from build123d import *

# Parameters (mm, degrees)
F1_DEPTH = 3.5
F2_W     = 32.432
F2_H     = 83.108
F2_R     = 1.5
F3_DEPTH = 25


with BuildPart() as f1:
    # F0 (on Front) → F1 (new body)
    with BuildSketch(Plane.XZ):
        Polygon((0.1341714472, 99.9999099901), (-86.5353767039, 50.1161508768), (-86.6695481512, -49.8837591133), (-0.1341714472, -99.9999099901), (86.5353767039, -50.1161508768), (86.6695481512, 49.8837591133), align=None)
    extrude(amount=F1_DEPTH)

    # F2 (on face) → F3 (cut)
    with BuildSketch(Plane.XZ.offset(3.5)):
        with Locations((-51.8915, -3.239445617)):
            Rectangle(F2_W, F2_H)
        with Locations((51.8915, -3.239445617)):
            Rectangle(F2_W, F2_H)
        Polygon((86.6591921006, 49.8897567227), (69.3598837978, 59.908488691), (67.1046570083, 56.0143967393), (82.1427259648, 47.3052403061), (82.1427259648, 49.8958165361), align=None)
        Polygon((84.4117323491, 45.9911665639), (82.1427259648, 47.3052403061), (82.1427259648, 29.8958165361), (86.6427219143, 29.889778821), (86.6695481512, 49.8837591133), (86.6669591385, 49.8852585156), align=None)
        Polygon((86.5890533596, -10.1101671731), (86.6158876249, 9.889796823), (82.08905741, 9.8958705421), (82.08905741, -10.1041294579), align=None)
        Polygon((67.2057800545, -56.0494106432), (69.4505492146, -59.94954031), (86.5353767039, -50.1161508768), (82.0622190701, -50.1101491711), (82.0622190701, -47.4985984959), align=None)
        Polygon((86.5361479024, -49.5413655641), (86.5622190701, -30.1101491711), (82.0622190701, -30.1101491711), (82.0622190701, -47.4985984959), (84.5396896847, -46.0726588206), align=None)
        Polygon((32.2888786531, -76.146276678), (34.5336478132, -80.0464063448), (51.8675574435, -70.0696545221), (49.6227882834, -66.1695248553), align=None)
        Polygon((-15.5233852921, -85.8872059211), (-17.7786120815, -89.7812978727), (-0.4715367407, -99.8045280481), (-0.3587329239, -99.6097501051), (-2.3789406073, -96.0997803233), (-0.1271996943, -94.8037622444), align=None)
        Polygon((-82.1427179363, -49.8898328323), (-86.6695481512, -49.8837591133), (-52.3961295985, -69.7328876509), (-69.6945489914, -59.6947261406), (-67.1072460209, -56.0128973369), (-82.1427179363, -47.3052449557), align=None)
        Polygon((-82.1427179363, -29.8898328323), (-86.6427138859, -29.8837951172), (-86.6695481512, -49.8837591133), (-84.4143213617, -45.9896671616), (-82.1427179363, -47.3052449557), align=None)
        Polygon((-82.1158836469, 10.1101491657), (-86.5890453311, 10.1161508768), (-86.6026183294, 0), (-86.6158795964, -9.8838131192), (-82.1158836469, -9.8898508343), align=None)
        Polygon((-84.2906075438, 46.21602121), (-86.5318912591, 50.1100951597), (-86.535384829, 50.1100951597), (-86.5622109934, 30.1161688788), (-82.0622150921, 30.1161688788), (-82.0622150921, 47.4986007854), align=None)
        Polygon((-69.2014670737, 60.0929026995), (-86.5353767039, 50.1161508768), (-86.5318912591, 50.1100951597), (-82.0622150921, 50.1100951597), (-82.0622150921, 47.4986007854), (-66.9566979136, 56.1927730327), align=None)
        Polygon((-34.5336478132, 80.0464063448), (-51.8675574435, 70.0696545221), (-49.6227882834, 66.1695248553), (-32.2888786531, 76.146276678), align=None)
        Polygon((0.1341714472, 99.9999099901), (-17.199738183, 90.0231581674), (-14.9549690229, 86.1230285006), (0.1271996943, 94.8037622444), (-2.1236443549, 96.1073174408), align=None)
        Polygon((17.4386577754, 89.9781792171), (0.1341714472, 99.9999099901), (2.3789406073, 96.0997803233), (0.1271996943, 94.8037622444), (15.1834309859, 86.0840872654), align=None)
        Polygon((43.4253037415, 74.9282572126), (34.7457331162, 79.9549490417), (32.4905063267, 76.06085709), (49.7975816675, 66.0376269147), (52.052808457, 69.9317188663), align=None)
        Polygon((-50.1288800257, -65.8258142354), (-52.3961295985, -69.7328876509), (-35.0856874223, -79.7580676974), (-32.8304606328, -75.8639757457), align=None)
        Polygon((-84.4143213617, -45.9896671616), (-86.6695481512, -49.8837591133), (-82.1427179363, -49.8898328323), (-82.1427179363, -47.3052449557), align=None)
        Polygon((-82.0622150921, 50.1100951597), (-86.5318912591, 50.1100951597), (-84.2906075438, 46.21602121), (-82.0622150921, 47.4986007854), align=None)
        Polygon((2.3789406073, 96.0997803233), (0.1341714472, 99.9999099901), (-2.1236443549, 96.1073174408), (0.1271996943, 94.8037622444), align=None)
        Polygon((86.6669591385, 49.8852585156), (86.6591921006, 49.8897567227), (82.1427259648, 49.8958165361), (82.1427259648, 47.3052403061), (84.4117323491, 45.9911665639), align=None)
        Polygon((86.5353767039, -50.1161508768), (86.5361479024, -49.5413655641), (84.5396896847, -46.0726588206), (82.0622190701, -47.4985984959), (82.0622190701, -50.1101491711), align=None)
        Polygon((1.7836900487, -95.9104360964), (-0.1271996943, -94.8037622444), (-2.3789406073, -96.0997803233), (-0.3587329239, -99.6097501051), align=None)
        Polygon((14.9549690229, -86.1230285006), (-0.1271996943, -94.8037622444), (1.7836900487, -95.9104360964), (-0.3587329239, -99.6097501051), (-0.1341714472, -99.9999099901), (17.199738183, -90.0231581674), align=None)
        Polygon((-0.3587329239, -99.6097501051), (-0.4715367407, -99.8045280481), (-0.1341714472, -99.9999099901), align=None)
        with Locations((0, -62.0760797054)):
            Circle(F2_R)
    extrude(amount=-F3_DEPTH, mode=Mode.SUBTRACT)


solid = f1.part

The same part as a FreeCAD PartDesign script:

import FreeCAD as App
import Part
import Sketcher

V = App.Vector


def add_polygon(sketch, points):
    """Adds a closed chain of lines whose ends are joined by coincident constraints."""
    first, n = sketch.GeometryCount, len(points)
    for a, b in zip(points, points[1:] + points[:1]):
        sketch.addGeometry(Part.LineSegment(App.Vector(*a, 0), App.Vector(*b, 0)), False)
    for i in range(n):
        sketch.addConstraint(Sketcher.Constraint("Coincident", first + i, 2, first + (i + 1) % n, 1))

doc = App.newDocument("Part")
body = doc.addObject("PartDesign::Body", "Body")
body.AllowCompound = True

sketch1 = body.newObject("Sketcher::SketchObject", "Sketch")
sketch1.AttachmentSupport = (doc.getObject("XZ_Plane"), [""])
sketch1.MapMode = "FlatFace"
add_polygon(sketch1, [(0.134171, 99.99991), (-86.535377, 50.116151), (-86.669548, -49.883759), (-0.134171, -99.99991), (86.535377, -50.116151), (86.669548, 49.883759)])
sketch1.addConstraint([
    Sketcher.Constraint("Symmetric", 0, 2, 3, 2, -1, 1),
    Sketcher.Constraint("Symmetric", 1, 2, 4, 2, -1, 1),
    Sketcher.Constraint("Symmetric", 2, 2, 5, 2, -1, 1),
    Sketcher.Constraint("Equal", 0, 1),
    Sketcher.Constraint("Equal", 1, 2),
    Sketcher.Constraint("Distance", 0, 100.0),
    Sketcher.Constraint("DistanceY", 3, 2, 0, 2, 100.232302),
    Sketcher.Constraint("DistanceX", 1, 2, -1, 1, 86.669548),
    Sketcher.Constraint("DistanceX", 2, 2, -1, 1, 0.134171),
])
pad1 = body.newObject("PartDesign::Pad", "Pad")
pad1.Profile = sketch1
pad1.Length = 3.5

sketch2 = body.newObject("Sketcher::SketchObject", "Sketch001")
sketch2.AttachmentSupport = (doc.getObject("XZ_Plane"), [""])
sketch2.MapMode = "FlatFace"
sketch2.AttachmentOffset = App.Placement(V(0, 0, 3.5), App.Rotation())
add_polygon(sketch2, [(-68.1075, 38.314554), (-68.1075, -44.793446), (-35.6755, -44.793446), (-35.6755, 38.314554)])
add_polygon(sketch2, [(35.6755, 38.314554), (35.6755, -44.793446), (68.1075, -44.793446), (68.1075, 38.314554)])
add_polygon(sketch2, [(86.659192, 49.889757), (69.359884, 59.908489), (67.104657, 56.014397), (82.142726, 47.30524), (82.142726, 29.895817), (86.642722, 29.889779), (86.669548, 49.883759), (86.666959, 49.885259)])
add_polygon(sketch2, [(86.589053, -10.110167), (86.615888, 9.889797), (82.089057, 9.895871), (82.089057, -10.104129)])
add_polygon(sketch2, [(67.20578, -56.049411), (69.450549, -59.94954), (86.535377, -50.116151), (86.536148, -49.541366), (86.562219, -30.110149), (82.062219, -30.110149), (82.062219, -47.498598)])
add_polygon(sketch2, [(32.288879, -76.146277), (34.533648, -80.046406), (51.867557, -70.069655), (49.622788, -66.169525)])
add_polygon(sketch2, [(-15.523385, -85.887206), (-17.778612, -89.781298), (-0.471537, -99.804528), (-0.134171, -99.99991), (17.199738, -90.023158), (14.954969, -86.123029), (-0.1272, -94.803762)])
add_polygon(sketch2, [(-86.669548, -49.883759), (-52.39613, -69.732888), (-69.694549, -59.694726), (-67.107246, -56.012897), (-82.142718, -47.305245), (-82.142718, -29.889833), (-86.642714, -29.883795)])
add_polygon(sketch2, [(-82.115884, 10.110149), (-86.589045, 10.116151), (-86.602618, 0), (-86.61588, -9.883813), (-82.115884, -9.889851)])
add_polygon(sketch2, [(-86.531891, 50.110095), (-86.535385, 50.110095), (-86.562211, 30.116169), (-82.062215, 30.116169), (-82.062215, 47.498601), (-66.956698, 56.192773), (-69.201467, 60.092903), (-86.535377, 50.116151)])
add_polygon(sketch2, [(-34.533648, 80.046406), (-51.867557, 70.069655), (-49.622788, 66.169525), (-32.288879, 76.146277)])
add_polygon(sketch2, [(0.134171, 99.99991), (-17.199738, 90.023158), (-14.954969, 86.123029), (0.1272, 94.803762), (15.183431, 86.084087), (17.438658, 89.978179)])
add_polygon(sketch2, [(43.425304, 74.928257), (34.745733, 79.954949), (32.490506, 76.060857), (49.797582, 66.037627), (52.052808, 69.931719)])
add_polygon(sketch2, [(-50.12888, -65.825814), (-52.39613, -69.732888), (-35.085687, -79.758068), (-32.830461, -75.863976)])
sketch2.addGeometry(Part.Circle(V(0, -62.07608, 0), V(0, 0, 1), 1.5), False)
sketch2.addConstraint([
    Sketcher.Constraint("Vertical", 0),
    Sketcher.Constraint("Horizontal", 1),
    Sketcher.Constraint("Vertical", 2),
    Sketcher.Constraint("Horizontal", 3),
    Sketcher.Constraint("Vertical", 4),
    Sketcher.Constraint("Horizontal", 5),
    Sketcher.Constraint("Vertical", 6),
    Sketcher.Constraint("Horizontal", 7),
    Sketcher.Constraint("Vertical", 11),
    Sketcher.Constraint("Vertical", 18),
    Sketcher.Constraint("Horizontal", 24),
    Sketcher.Constraint("Vertical", 25),
    Sketcher.Constraint("Vertical", 42),
    Sketcher.Constraint("Vertical", 49),
    Sketcher.Constraint("Horizontal", 50),
    Sketcher.Constraint("Horizontal", 52),
    Sketcher.Constraint("Vertical", 53),
    Sketcher.Constraint("Coincident", 73, 2, 38, 2),
    Sketcher.Constraint("PointOnObject", 77, 3, -2),
    Sketcher.Constraint("PointOnObject", 46, 2, -1),
    Sketcher.Constraint("Diameter", 77, 3.0),
    Sketcher.Constraint("DistanceY", 18, 2, 18, 1, 20.0),
    Sketcher.Constraint("DistanceY", 49, 1, 49, 2, 20.0),
    Sketcher.Constraint("Distance", 28, 20.0),
    Sketcher.Constraint("Distance", 30, 20.0),
    Sketcher.Constraint("Distance", 32, 20.0),
    Sketcher.Constraint("Distance", 34, 20.0),
    Sketcher.Constraint("Distance", 39, 20.0),
    Sketcher.Constraint("Distance", 56, 20.0),
    Sketcher.Constraint("Distance", 58, 20.0),
    Sketcher.Constraint("Distance", 60, 20.0),
    Sketcher.Constraint("Distance", 62, 20.0),
    Sketcher.Constraint("Distance", 70, 20.0),
    Sketcher.Constraint("Distance", 76, 20.0),
    Sketcher.Constraint("DistanceX", 24, 2, 24, 1, 4.5),
    Sketcher.Constraint("Distance", 9, 4.5),
    Sketcher.Constraint("Distance", 12, 4.5),
    Sketcher.Constraint("Distance", 19, 4.5),
    Sketcher.Constraint("Distance", 20, 4.5),
    Sketcher.Constraint("Distance", 27, 4.5),
    Sketcher.Constraint("Distance", 29, 4.5),
    Sketcher.Constraint("Distance", 31, 4.5),
    Sketcher.Constraint("Distance", 35, 4.5),
    Sketcher.Constraint("Distance", 40, 4.5),
    Sketcher.Constraint("Distance", 43, 4.5),
    Sketcher.Constraint("Distance", 48, 4.5),
    Sketcher.Constraint("Distance", 55, 4.5),
    Sketcher.Constraint("Distance", 59, 4.5),
    Sketcher.Constraint("Distance", 61, 4.5),
    Sketcher.Constraint("Distance", 63, 4.5),
    Sketcher.Constraint("Distance", 66, 4.5),
    Sketcher.Constraint("Distance", 69, 4.5),
    Sketcher.Constraint("Distance", 71, 4.5),
    Sketcher.Constraint("Distance", 75, 4.5),
    Sketcher.Constraint("DistanceX", 1, 1, 1, 2, 32.432),
    Sketcher.Constraint("DistanceX", 5, 1, 5, 2, 32.432),
    Sketcher.Constraint("DistanceY", 0, 2, 0, 1, 83.108),
    Sketcher.Constraint("DistanceY", 4, 2, 4, 1, 83.108),
    Sketcher.Constraint("Distance", 13, 19.993998),
    Sketcher.Constraint("DistanceY", 25, 2, 25, 1, 17.388449),
    Sketcher.Constraint("DistanceY", 53, 1, 53, 2, 17.382432),
    Sketcher.Constraint("DistanceX", 0, 2, -1, 1, 68.1075),
    Sketcher.Constraint("DistanceX", -1, 1, 4, 2, 35.6755),
    Sketcher.Constraint("DistanceY", 25, 2, -1, 1, 47.498598),
    Sketcher.Constraint("DistanceX", 36, 2, -1, 1, 0.1272),
    Sketcher.Constraint("DistanceY", -1, 1, 53, 2, 47.498601),
    Sketcher.Constraint("DistanceX", -1, 1, 64, 2, 0.1272),
    Sketcher.Constraint("Distance", 14, 0.002992),
    Sketcher.Constraint("Distance", 16, 19.999982),
    Sketcher.Constraint("Distance", 33, 0.389858),
    Sketcher.Constraint("Distance", 38, 39.606251),
    Sketcher.Constraint("Distance", 44, 19.999982),
    Sketcher.Constraint("Distance", 46, 10.11616),
    Sketcher.Constraint("Distance", 65, 17.398932),
    Sketcher.Constraint("Distance", 67, 19.997008),
    Sketcher.Constraint("Distance", 73, 4.517261),
    Sketcher.Constraint("Distance", 74, 20.003891),
    Sketcher.Constraint("DistanceX", 50, 2, 50, 1, 0.003494),
    Sketcher.Constraint("DistanceX", 52, 1, 52, 2, 4.499996),
    Sketcher.Constraint("DistanceY", 11, 2, 11, 1, 17.409424),
    Sketcher.Constraint("DistanceY", 42, 1, 42, 2, 17.415412),
    Sketcher.Constraint("DistanceY", 77, 3, -1, 1, 62.07608),
    Sketcher.Constraint("DistanceY", -1, 1, 8, 2, 59.908489),
    Sketcher.Constraint("DistanceY", -1, 1, 10, 2, 47.30524),
    Sketcher.Constraint("DistanceX", -1, 1, 12, 2, 86.642722),
    Sketcher.Constraint("DistanceY", -1, 1, 12, 2, 29.889779),
    Sketcher.Constraint("DistanceX", -1, 1, 13, 2, 86.669548),
    Sketcher.Constraint("DistanceX", -1, 1, 14, 2, 86.666959),
    Sketcher.Constraint("DistanceY", -1, 1, 17, 2, 9.895871),
    Sketcher.Constraint("DistanceX", -1, 1, 20, 2, 69.450549),
    Sketcher.Constraint("DistanceY", 20, 2, -1, 1, 59.94954),
    Sketcher.Constraint("DistanceY", 21, 2, -1, 1, 50.116151),
    Sketcher.Constraint("DistanceX", -1, 1, 23, 2, 86.562219),
    Sketcher.Constraint("DistanceX", -1, 1, 26, 2, 67.20578),
    Sketcher.Constraint("DistanceX", -1, 1, 29, 2, 49.622788),
    Sketcher.Constraint("DistanceX", -1, 1, 30, 2, 32.288879),
    Sketcher.Constraint("DistanceY", 32, 2, -1, 1, 99.804528),
    Sketcher.Constraint("DistanceX", 33, 2, -1, 1, 0.134171),
    Sketcher.Constraint("DistanceY", 33, 2, -1, 1, 99.99991),
    Sketcher.Constraint("DistanceX", -1, 1, 34, 2, 17.199738),
    Sketcher.Constraint("DistanceX", -1, 1, 35, 2, 14.954969),
    Sketcher.Constraint("DistanceX", 38, 2, -1, 1, 52.39613),
    Sketcher.Constraint("DistanceX", 39, 2, -1, 1, 69.694549),
    Sketcher.Constraint("DistanceX", 44, 2, -1, 1, 86.669548),
    Sketcher.Constraint("DistanceY", 44, 2, -1, 1, 49.883759),
    Sketcher.Constraint("DistanceX", 46, 2, -1, 1, 86.602618),
    Sketcher.Constraint("DistanceX", 47, 2, -1, 1, 86.61588),
    Sketcher.Constraint("DistanceY", 48, 2, -1, 1, 9.889851),
    Sketcher.Constraint("DistanceX", 51, 2, -1, 1, 86.562211),
    Sketcher.Constraint("DistanceY", -1, 1, 56, 2, 50.116151),
    Sketcher.Constraint("DistanceX", 57, 2, -1, 1, 86.531891),
    Sketcher.Constraint("DistanceX", 59, 2, -1, 1, 49.622788),
    Sketcher.Constraint("DistanceX", 60, 2, -1, 1, 32.288879),
    Sketcher.Constraint("DistanceX", 62, 2, -1, 1, 17.199738),
    Sketcher.Constraint("DistanceY", -1, 1, 62, 2, 90.023158),
    Sketcher.Constraint("DistanceX", 63, 2, -1, 1, 14.954969),
    Sketcher.Constraint("DistanceX", -1, 1, 65, 2, 15.183431),
    Sketcher.Constraint("DistanceY", -1, 1, 66, 2, 89.978179),
    Sketcher.Constraint("DistanceX", -1, 1, 67, 2, 0.134171),
    Sketcher.Constraint("DistanceY", -1, 1, 68, 2, 79.954949),
    Sketcher.Constraint("DistanceX", -1, 1, 70, 2, 49.797582),
    Sketcher.Constraint("DistanceX", -1, 1, 71, 2, 52.052808),
    Sketcher.Constraint("DistanceY", -1, 1, 71, 2, 69.931719),
    Sketcher.Constraint("DistanceX", 75, 2, -1, 1, 32.830461),
    Sketcher.Constraint("DistanceX", 76, 2, -1, 1, 50.12888),
    Sketcher.Constraint("Distance", 8, 19.991024),
    Sketcher.Constraint("Distance", 10, 17.377944),
    Sketcher.Constraint("Distance", 15, 0.008976),
    Sketcher.Constraint("Distance", 17, 4.526834),
    Sketcher.Constraint("Distance", 21, 19.712607),
    Sketcher.Constraint("Distance", 22, 0.574786),
    Sketcher.Constraint("Distance", 36, 17.401924),
    Sketcher.Constraint("Distance", 37, 17.791782),
    Sketcher.Constraint("Distance", 41, 17.374942),
    Sketcher.Constraint("Distance", 45, 4.473166),
    Sketcher.Constraint("Distance", 47, 9.883822),
    Sketcher.Constraint("Distance", 51, 19.993944),
    Sketcher.Constraint("Distance", 54, 17.428863),
    Sketcher.Constraint("Distance", 57, 0.006987),
    Sketcher.Constraint("Distance", 68, 10.030084),
    Sketcher.Constraint("Distance", 72, 9.969916),
    Sketcher.Constraint("DistanceY", 0, 2, -1, 1, 44.793446),
    Sketcher.Constraint("DistanceY", 4, 2, -1, 1, 44.793446),
    Sketcher.Constraint("DistanceX", -1, 1, 15, 2, 86.659192),
    Sketcher.Constraint("DistanceX", -1, 1, 16, 2, 86.615888),
    Sketcher.Constraint("DistanceY", -1, 1, 16, 2, 9.889797),
    Sketcher.Constraint("DistanceX", -1, 1, 22, 2, 86.536148),
    Sketcher.Constraint("DistanceX", -1, 1, 27, 2, 34.533648),
    Sketcher.Constraint("DistanceY", 27, 2, -1, 1, 80.046406),
    Sketcher.Constraint("DistanceX", 31, 2, -1, 1, 17.778612),
    Sketcher.Constraint("DistanceX", 40, 2, -1, 1, 67.107246),
    Sketcher.Constraint("DistanceX", 41, 2, -1, 1, 82.142718),
    Sketcher.Constraint("DistanceX", 54, 2, -1, 1, 66.956698),
    Sketcher.Constraint("DistanceX", 58, 2, -1, 1, 51.867557),
    Sketcher.Constraint("DistanceY", -1, 1, 58, 2, 70.069655),
    Sketcher.Constraint("DistanceX", -1, 1, 72, 2, 43.425304),
])
pocket1 = body.newObject("PartDesign::Pocket", "Pocket")
pocket1.Profile = sketch2
pocket1.Length = 25

doc.recompute()
